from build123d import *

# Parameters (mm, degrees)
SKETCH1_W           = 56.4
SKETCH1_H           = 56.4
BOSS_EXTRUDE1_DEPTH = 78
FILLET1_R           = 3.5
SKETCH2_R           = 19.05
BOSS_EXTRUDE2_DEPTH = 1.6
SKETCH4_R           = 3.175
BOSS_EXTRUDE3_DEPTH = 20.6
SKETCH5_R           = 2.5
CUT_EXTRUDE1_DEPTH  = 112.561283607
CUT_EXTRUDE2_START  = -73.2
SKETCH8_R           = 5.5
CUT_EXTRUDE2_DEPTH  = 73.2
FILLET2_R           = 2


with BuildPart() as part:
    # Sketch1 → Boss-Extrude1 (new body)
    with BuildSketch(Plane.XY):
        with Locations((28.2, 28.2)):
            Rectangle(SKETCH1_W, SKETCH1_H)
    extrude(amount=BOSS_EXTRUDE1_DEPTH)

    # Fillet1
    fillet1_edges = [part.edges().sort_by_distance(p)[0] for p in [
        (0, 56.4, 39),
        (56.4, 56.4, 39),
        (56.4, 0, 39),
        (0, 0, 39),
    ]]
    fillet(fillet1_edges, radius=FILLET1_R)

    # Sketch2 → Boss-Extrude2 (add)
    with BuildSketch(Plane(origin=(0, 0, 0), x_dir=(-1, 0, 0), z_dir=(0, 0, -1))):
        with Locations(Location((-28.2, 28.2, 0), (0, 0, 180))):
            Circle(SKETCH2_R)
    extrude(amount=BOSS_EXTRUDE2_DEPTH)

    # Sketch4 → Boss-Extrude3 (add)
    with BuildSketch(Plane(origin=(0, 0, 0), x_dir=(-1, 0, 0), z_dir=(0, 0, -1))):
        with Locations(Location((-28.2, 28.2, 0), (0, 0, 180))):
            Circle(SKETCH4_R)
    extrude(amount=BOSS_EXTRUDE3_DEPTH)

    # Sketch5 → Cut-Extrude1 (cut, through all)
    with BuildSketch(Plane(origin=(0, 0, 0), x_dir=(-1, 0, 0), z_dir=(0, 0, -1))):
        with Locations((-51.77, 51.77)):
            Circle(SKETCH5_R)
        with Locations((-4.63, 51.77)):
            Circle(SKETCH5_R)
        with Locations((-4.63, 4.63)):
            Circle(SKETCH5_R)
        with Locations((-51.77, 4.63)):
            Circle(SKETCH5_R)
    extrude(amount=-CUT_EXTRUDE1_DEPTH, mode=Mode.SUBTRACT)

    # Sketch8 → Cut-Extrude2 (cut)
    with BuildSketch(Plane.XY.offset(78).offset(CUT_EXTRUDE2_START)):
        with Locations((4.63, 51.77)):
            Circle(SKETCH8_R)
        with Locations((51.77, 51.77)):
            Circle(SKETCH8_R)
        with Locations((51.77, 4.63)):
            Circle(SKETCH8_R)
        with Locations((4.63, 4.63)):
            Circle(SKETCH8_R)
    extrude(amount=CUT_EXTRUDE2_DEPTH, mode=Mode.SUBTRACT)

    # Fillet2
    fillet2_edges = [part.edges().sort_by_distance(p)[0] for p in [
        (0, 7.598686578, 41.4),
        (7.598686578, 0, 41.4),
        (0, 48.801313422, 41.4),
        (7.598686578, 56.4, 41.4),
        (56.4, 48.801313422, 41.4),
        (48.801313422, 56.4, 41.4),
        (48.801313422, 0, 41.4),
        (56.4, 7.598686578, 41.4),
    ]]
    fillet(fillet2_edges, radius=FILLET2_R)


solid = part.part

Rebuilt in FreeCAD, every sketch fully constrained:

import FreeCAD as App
import Part
import Sketcher

V = App.Vector


def edges_at(feature, points):
    """Names of the edges that pass closest to the given points."""
    edges = feature.Shape.Edges
    near = lambda p: min(range(len(edges)), key=lambda i: edges[i].distToShape(Part.Vertex(*p))[0])
    return sorted({f"Edge{near(p) + 1}" for p in points})


def add_polygon(sketch, points):
    """Adds a closed chain of lines whose ends are joined by coincident constraints."""
    first, n = sketch.GeometryCount, len(points)
    for a, b in zip(points, points[1:] + points[:1]):
        sketch.addGeometry(Part.LineSegment(App.Vector(*a, 0), App.Vector(*b, 0)), False)
    for i in range(n):
        sketch.addConstraint(Sketcher.Constraint("Coincident", first + i, 2, first + (i + 1) % n, 1))

doc = App.newDocument("Part")
params = doc.addObject("Spreadsheet::Sheet", "Params")
for row, (alias, value) in enumerate([
    ("sketch1_width", "56.4 mm"),
    ("pad1_length", "78 mm"),
    ("fillet_radius", "3.5 mm"),
    ("sketch2_diameter", "38.1 mm"),
    ("pad2_length", "1.6 mm"),
    ("sketch3_diameter", "6.35 mm"),
    ("pad3_length", "20.6 mm"),
    ("sketch4_diameter", "5 mm"),
    ("sketch5_diameter", "11 mm"),
    ("pocket2_length", "73.2 mm"),
    ("fillet2_radius", "2 mm"),
], start=1):
    params.set(f"A{row}", alias)
    params.set(f"B{row}", "=" + value)
    params.setAlias(f"B{row}", alias)

body = doc.addObject("PartDesign::Body", "Body")

sketch1 = body.newObject("Sketcher::SketchObject", "Sketch")
sketch1.AttachmentSupport = (doc.getObject("XY_Plane"), [""])
sketch1.MapMode = "FlatFace"
add_polygon(sketch1, [(0, 56), (0, 0), (56, 0), (56, 56)])
sketch1.addConstraint([
    Sketcher.Constraint("Vertical", 0),
    Sketcher.Constraint("Horizontal", 1),
    Sketcher.Constraint("Vertical", 2),
    Sketcher.Constraint("Horizontal", 3),
    Sketcher.Constraint("Coincident", 0, 2, -1, 1),
    Sketcher.Constraint("Equal", 3, 0),
    Sketcher.Constraint("DistanceX", 1, 1, 1, 2, 56.4),
])
sketch1.setExpression("Constraints[10]", "Params.sketch1_width")
pad1 = body.newObject("PartDesign::Pad", "Pad")
pad1.Profile = sketch1
pad1.setExpression("Length", "Params.pad1_length")
doc.recompute()

fillet = body.newObject("PartDesign::Fillet", "Fillet")
fillet.Base = (pad1, edges_at(pad1, [
    (0, 56.4, 39),
    (56.4, 56.4, 39),
    (56.4, 0, 39),
    (0, 0, 39),
]))
fillet.setExpression("Radius", "Params.fillet_radius")

sketch2 = body.newObject("Sketcher::SketchObject", "Sketch001")
sketch2.AttachmentSupport = (doc.getObject("XY_Plane"), [""])
sketch2.MapMode = "FlatFace"
sketch2.addGeometry(Part.Circle(V(28, 28, 0), V(0, 0, 1), 19), False)
sketch2.addConstraint([
    Sketcher.Constraint("Diameter", 0, 38.1),
    Sketcher.Constraint("DistanceX", -1, 1, 0, 3, 28.2),
    Sketcher.Constraint("DistanceY", -1, 1, 0, 3, 28.2),
])
sketch2.setExpression("Constraints[0]", "Params.sketch2_diameter")
pad2 = body.newObject("PartDesign::Pad", "Pad001")
pad2.Profile = sketch2
pad2.setExpression("Length", "Params.pad2_length")
pad2.Reversed = True

sketch3 = body.newObject("Sketcher::SketchObject", "Sketch002")
sketch3.AttachmentSupport = (doc.getObject("XY_Plane"), [""])
sketch3.MapMode = "FlatFace"
sketch3.addGeometry(Part.Circle(V(28.2, 28.2, 0), V(0, 0, 1), 3.2), False)
sketch3.addConstraint([
    Sketcher.Constraint("Diameter", 0, 6.35),
    Sketcher.Constraint("DistanceX", -1, 1, 0, 3, 28.2),
    Sketcher.Constraint("DistanceY", -1, 1, 0, 3, 28.2),
])
sketch3.setExpression("Constraints[0]", "Params.sketch3_diameter")
pad3 = body.newObject("PartDesign::Pad", "Pad002")
pad3.Profile = sketch3
pad3.setExpression("Length", "Params.pad3_length")
pad3.Reversed = True

sketch4 = body.newObject("Sketcher::SketchObject", "Sketch003")
sketch4.AttachmentSupport = (doc.getObject("XY_Plane"), [""])
sketch4.MapMode = "FlatFace"
sketch4.addGeometry([
    Part.Circle(V(51.8, 51.8, 0), V(0, 0, 1), 2.5),
    Part.Circle(V(4.6, 51.8, 0), V(0, 0, 1), 2.5),
    Part.Circle(V(4.6, 4.6, 0), V(0, 0, 1), 2.5),
    Part.Circle(V(51.8, 4.6, 0), V(0, 0, 1), 2.5),
], False)
sketch4.addConstraint([
    Sketcher.Constraint("Equal", 0, 1),
    Sketcher.Constraint("Equal", 1, 2),
    Sketcher.Constraint("Equal", 2, 3),
    Sketcher.Constraint("Horizontal", 0, 3, 1, 3),
    Sketcher.Constraint("Horizontal", 2, 3, 3, 3),
    Sketcher.Constraint("Vertical", 1, 3, 2, 3),
    Sketcher.Constraint("Vertical", 0, 3, 3, 3),
    Sketcher.Constraint("Diameter", 0, 5.0),
    Sketcher.Constraint("DistanceX", -1, 1, 0, 3, 51.77),
    Sketcher.Constraint("DistanceY", -1, 1, 0, 3, 51.77),
    Sketcher.Constraint("DistanceX", -1, 1, 1, 3, 4.63),
    Sketcher.Constraint("DistanceY", -1, 1, 2, 3, 4.63),
])
sketch4.setExpression("Constraints[7]", "Params.sketch4_diameter")
pocket1 = body.newObject("PartDesign::Pocket", "Pocket")
pocket1.Profile = sketch4
pocket1.Type = "ThroughAll"
pocket1.Reversed = True

sketch5 = body.newObject("Sketcher::SketchObject", "Sketch004")
sketch5.AttachmentSupport = (doc.getObject("XY_Plane"), [""])
sketch5.MapMode = "FlatFace"
sketch5.AttachmentOffset = App.Placement(V(0, 0, 4.8), App.Rotation())
sketch5.addGeometry([
    Part.Circle(V(5, 52, 0), V(0, 0, 1), 6),
    Part.Circle(V(52, 52, 0), V(0, 0, 1), 6),
    Part.Circle(V(52, 5, 0), V(0, 0, 1), 6),
    Part.Circle(V(5, 5, 0), V(0, 0, 1), 6),
], False)
sketch5.addConstraint([
    Sketcher.Constraint("Equal", 0, 1),
    Sketcher.Constraint("Equal", 1, 2),
    Sketcher.Constraint("Equal", 2, 3),
    Sketcher.Constraint("Horizontal", 0, 3, 1, 3),
    Sketcher.Constraint("Horizontal", 2, 3, 3, 3),
    Sketcher.Constraint("Vertical", 1, 3, 2, 3),
    Sketcher.Constraint("Vertical", 0, 3, 3, 3),
    Sketcher.Constraint("Diameter", 0, 11.0),
    Sketcher.Constraint("DistanceX", -1, 1, 0, 3, 4.63),
    Sketcher.Constraint("DistanceY", -1, 1, 0, 3, 51.77),
    Sketcher.Constraint("DistanceX", -1, 1, 1, 3, 51.77),
    Sketcher.Constraint("DistanceY", -1, 1, 2, 3, 4.63),
])
sketch5.setExpression("Constraints[7]", "Params.sketch5_diameter")
pocket2 = body.newObject("PartDesign::Pocket", "Pocket001")
pocket2.Profile = sketch5
pocket2.setExpression("Length", "Params.pocket2_length")
pocket2.Reversed = True
doc.recompute()

fillet2 = body.newObject("PartDesign::Fillet", "Fillet001")
fillet2.Base = (pocket2, edges_at(pocket2, [
    (0, 7.599, 41.4),
    (7.599, 0, 41.4),
    (0, 48.801, 41.4),
    (7.599, 56.4, 41.4),
    (56.4, 48.801, 41.4),
    (48.801, 56.4, 41.4),
    (48.801, 0, 41.4),
    (56.4, 7.599, 41.4),
]))
fillet2.setExpression("Radius", "Params.fillet2_radius")

doc.recompute()
